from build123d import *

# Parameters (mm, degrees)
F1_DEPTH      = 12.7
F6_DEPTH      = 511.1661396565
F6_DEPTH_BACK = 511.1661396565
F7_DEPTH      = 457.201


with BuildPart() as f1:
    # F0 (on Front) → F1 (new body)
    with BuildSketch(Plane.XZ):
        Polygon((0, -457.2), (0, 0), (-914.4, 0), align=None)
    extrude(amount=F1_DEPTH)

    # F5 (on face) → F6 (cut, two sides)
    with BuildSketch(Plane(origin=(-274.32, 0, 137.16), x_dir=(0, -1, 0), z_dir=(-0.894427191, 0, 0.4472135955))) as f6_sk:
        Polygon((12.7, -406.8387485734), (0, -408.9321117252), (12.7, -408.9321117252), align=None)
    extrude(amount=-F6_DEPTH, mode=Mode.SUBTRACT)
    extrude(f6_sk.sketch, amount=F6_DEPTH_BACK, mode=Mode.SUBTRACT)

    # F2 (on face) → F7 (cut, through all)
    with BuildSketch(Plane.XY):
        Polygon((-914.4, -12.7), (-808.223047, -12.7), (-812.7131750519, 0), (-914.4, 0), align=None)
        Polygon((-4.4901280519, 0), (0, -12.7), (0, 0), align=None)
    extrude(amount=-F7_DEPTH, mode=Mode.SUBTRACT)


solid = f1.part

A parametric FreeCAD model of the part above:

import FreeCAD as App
import Part
import Sketcher

V = App.Vector
Q = App.Units.Quantity

doc = App.newDocument("Part")
body = doc.addObject("PartDesign::Body", "Body")

sketch1 = body.newObject("Sketcher::SketchObject", "Sketch")
sketch1.AttachmentSupport = (doc.getObject("XZ_Plane"), [""])
sketch1.MapMode = "FlatFace"
sketch1.addGeometry([
    Part.LineSegment(V(0, -457.2, 0), V(0, 0, 0)),
    Part.LineSegment(V(0, 0, 0), V(-914.4, 0, 0)),
    Part.LineSegment(V(-914.4, 0, 0), V(0, -457.2, 0)),
], False)
sketch1.addConstraint([
    Sketcher.Constraint("Coincident", 0, 2, 1, 1),
    Sketcher.Constraint("Coincident", 1, 2, 2, 1),
    Sketcher.Constraint("Coincident", 2, 2, 0, 1),
    Sketcher.Constraint("Vertical", 0),
    Sketcher.Constraint("Horizontal", 1),
    Sketcher.Constraint("Coincident", 0, 2, -1, 1),
    Sketcher.Constraint("DistanceX", 1, 2, 1, 1, Q("36 in")),
    Sketcher.Constraint("DistanceY", 0, 1, 0, 2, Q("18 in")),
])
pad1 = body.newObject("PartDesign::Pad", "Pad")
pad1.Profile = sketch1
pad1.Length = Q("0.5 in")

sketch2 = body.newObject("Sketcher::SketchObject", "Sketch001")
sketch2.Placement = App.Placement(V(-274.32, 0, 137.16), App.Rotation(V(0, -1, 0), V(0.447213595, 0, 0.894427191), V(-0.894427191, 0, 0.447213595), "ZXY"))
sketch2.addGeometry([
    Part.LineSegment(V(12.7, -406.838748, 0), V(0, -408.932112, 0)),
    Part.LineSegment(V(0, -408.932112, 0), V(12.7, -408.932112, 0)),
    Part.LineSegment(V(12.7, -408.932112, 0), V(12.7, -406.838748, 0)),
], False)
sketch2.addConstraint([
    Sketcher.Constraint("Coincident", 0, 2, 1, 1),
    Sketcher.Constraint("Coincident", 1, 2, 2, 1),
    Sketcher.Constraint("Coincident", 2, 2, 0, 1),
    Sketcher.Constraint("Horizontal", 1),
    Sketcher.Constraint("Vertical", 2),
    Sketcher.Constraint("PointOnObject", 0, 2, -2),
    Sketcher.Constraint("DistanceX", 1, 1, 1, 2, Q("0.5 in")),
    Sketcher.Constraint("Angle", 0, Q("-170.64 deg")),
    Sketcher.Constraint("DistanceY", 0, 2, -1, 1, 408.932112),
])
pocket1 = body.newObject("PartDesign::Pocket", "Pocket")
pocket1.Profile = sketch2
pocket1.Type = "ThroughAll"
pocket1.Midplane = True

sketch3 = body.newObject("Sketcher::SketchObject", "Sketch002")
sketch3.AttachmentSupport = (doc.getObject("XY_Plane"), [""])
sketch3.MapMode = "FlatFace"
sketch3.addGeometry([
    Part.LineSegment(V(-914.4, -12.7, 0), V(-808.223047, -12.7, 0)),
    Part.LineSegment(V(-808.223047, -12.7, 0), V(-812.713175, 0, 0)),
    Part.LineSegment(V(-812.713175, 0, 0), V(-914.4, 0, 0)),
    Part.LineSegment(V(-914.4, 0, 0), V(-914.4, -12.7, 0)),
    Part.LineSegment(V(-4.490128, 0, 0), V(0, -12.7, 0)),
    Part.LineSegment(V(0, -12.7, 0), V(0, 0, 0)),
    Part.LineSegment(V(0, 0, 0), V(-4.490128, 0, 0)),
], False)
sketch3.addConstraint([
    Sketcher.Constraint("Coincident", 0, 2, 1, 1),
    Sketcher.Constraint("Coincident", 1, 2, 2, 1),
    Sketcher.Constraint("Coincident", 2, 2, 3, 1),
    Sketcher.Constraint("Coincident", 3, 2, 0, 1),
    Sketcher.Constraint("Coincident", 4, 2, 5, 1),
    Sketcher.Constraint("Coincident", 5, 2, 6, 1),
    Sketcher.Constraint("Coincident", 6, 2, 4, 1),
    Sketcher.Constraint("Horizontal", 0),
    Sketcher.Constraint("Horizontal", 2),
    Sketcher.Constraint("Vertical", 3),
    Sketcher.Constraint("Vertical", 5),
    Sketcher.Constraint("Horizontal", 6),
    Sketcher.Constraint("Coincident", 5, 2, -1, 1),
    Sketcher.Constraint("PointOnObject", 1, 2, -1),
    Sketcher.Constraint("Parallel", 1, 4),
    Sketcher.Constraint("Horizontal", 3, 2, 4, 2),
    Sketcher.Constraint("DistanceY", 3, 2, 3, 1, Q("0.5 in")),
    Sketcher.Constraint("DistanceX", 2, 2, -1, 1, Q("36 in")),
    Sketcher.Constraint("DistanceX", 6, 2, 6, 1, 4.490128),
    Sketcher.Constraint("DistanceX", 0, 1, 0, 2, 106.176953),
])
pocket2 = body.newObject("PartDesign::Pocket", "Pocket001")
pocket2.Profile = sketch3
pocket2.Type = "ThroughAll"

doc.recompute()
